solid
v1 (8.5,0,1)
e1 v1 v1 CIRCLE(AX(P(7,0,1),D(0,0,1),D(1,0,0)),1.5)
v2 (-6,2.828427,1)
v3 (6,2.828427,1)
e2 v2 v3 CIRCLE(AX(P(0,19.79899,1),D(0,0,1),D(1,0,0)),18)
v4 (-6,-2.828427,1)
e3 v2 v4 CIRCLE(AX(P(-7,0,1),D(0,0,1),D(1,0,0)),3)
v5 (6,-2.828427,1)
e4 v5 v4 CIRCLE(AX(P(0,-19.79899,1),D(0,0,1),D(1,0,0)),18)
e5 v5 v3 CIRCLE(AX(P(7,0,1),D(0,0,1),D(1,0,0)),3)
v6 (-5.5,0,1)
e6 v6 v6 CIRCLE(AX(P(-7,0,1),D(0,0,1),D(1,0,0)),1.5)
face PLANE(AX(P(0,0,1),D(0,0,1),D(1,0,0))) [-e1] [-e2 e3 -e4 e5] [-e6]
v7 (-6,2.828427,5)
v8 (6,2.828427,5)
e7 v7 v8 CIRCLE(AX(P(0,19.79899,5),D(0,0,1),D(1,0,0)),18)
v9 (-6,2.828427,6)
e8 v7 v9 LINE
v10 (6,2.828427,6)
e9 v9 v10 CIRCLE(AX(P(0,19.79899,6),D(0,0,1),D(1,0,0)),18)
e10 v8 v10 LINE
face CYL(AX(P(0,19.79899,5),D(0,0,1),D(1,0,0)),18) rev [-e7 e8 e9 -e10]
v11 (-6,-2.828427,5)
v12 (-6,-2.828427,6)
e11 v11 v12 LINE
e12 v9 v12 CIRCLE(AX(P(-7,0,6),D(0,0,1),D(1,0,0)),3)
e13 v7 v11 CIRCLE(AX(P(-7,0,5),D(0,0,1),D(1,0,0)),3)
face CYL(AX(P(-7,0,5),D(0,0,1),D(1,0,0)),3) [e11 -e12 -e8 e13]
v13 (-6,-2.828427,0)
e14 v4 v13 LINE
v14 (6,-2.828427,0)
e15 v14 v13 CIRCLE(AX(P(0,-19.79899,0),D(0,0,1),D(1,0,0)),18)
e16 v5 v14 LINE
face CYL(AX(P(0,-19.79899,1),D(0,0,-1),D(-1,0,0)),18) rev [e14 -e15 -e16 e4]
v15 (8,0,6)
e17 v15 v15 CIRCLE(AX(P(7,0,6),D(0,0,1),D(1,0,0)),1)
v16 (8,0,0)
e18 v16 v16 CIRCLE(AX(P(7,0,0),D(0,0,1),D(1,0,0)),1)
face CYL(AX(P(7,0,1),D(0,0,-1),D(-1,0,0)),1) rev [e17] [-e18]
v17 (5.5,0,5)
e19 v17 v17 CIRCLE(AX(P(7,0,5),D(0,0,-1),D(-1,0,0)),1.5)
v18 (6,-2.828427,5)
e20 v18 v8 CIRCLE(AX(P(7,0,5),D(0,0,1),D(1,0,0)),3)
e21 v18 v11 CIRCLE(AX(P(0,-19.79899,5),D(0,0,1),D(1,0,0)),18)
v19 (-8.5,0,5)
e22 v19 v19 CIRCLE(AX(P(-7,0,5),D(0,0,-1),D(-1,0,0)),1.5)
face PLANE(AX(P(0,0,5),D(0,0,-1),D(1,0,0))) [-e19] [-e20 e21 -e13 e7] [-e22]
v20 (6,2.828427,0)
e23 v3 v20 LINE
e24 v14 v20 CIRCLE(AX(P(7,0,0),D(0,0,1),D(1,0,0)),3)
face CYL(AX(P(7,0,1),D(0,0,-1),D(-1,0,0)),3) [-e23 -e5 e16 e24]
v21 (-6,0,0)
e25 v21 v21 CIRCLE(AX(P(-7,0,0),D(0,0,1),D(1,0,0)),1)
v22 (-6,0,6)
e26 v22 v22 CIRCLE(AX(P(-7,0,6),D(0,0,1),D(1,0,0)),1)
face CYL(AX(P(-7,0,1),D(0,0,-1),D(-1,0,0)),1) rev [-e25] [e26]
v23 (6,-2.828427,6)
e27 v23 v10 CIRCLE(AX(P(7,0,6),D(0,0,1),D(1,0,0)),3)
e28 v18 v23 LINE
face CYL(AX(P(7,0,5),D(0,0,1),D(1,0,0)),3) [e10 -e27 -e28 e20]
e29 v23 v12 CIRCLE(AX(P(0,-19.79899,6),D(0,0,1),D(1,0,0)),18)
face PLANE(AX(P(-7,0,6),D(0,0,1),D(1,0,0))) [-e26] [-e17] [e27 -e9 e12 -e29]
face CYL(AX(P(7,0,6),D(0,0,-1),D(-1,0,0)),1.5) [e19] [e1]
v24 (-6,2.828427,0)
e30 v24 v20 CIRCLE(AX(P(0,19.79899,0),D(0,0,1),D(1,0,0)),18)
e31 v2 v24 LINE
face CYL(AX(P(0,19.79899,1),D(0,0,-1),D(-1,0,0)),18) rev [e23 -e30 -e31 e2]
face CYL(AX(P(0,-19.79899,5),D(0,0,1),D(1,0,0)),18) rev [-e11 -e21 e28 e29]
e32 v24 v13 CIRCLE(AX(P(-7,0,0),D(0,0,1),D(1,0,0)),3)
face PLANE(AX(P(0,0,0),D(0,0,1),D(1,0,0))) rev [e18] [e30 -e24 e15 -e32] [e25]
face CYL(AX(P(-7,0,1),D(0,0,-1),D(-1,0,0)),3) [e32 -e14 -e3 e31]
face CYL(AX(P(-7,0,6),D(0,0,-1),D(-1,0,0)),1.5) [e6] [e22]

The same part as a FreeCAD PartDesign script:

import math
import FreeCAD as App
import Part
import Sketcher
Q = App.Units.Quantity

doc = App.newDocument("Part")
body = doc.addObject("PartDesign::Body", "Body")

sketch1 = doc.addObject("Sketcher::SketchObject", "Sketch")
body.addObject(sketch1)
sketch1.AttachmentSupport = (doc.XY_Plane, [""])
sketch1.MapMode = "FlatFace"
sketch1.addGeometry([
    Part.ArcOfCircle(Part.Circle(App.Vector(-7, 0, 0), App.Vector(0, 0, 1), 3), math.radians(70.528779), math.radians(289.471221)),
    Part.ArcOfCircle(Part.Circle(App.Vector(0, -19.79899, 0), App.Vector(0, 0, 1), 18), math.radians(70.528779), math.radians(109.471221)),
    Part.ArcOfCircle(Part.Circle(App.Vector(7, 0, 0), App.Vector(0, 0, 1), 3), math.radians(-109.471221), math.radians(109.471221)),
    Part.ArcOfCircle(Part.Circle(App.Vector(0, 19.79899, 0), App.Vector(0, 0, 1), 18), math.radians(-109.471221), math.radians(-70.528779)),
    Part.Circle(App.Vector(-7, 0, 0), App.Vector(0, 0, 1), 1),
    Part.Circle(App.Vector(7, 0, 0), App.Vector(0, 0, 1), 1),
], False)
sketch1.addConstraint([
    Sketcher.Constraint("Tangent", 0, 2, 1, 2),
    Sketcher.Constraint("Tangent", 1, 1, 2, 1),
    Sketcher.Constraint("Tangent", 2, 2, 3, 2),
    Sketcher.Constraint("Tangent", 3, 1, 0, 1),
    Sketcher.Constraint("Coincident", 4, 3, 0, 3),
    Sketcher.Constraint("Coincident", 5, 3, 2, 3),
    Sketcher.Constraint("Equal", 0, 2),
    Sketcher.Constraint("Equal", 1, 3),
    Sketcher.Constraint("Equal", 4, 5),
    Sketcher.Constraint("Symmetric", 0, 3, 2, 3, -1, 1),
    Sketcher.Constraint("PointOnObject", 0, 3, -1),
    Sketcher.Constraint("Diameter", 4, Q("2 mm")),
    Sketcher.Constraint("Radius", 0, Q("3 mm")),
    Sketcher.Constraint("Radius", 1, Q("18 mm")),
    Sketcher.Constraint("DistanceX", 0, 3, -1, 1, Q("7 mm")),
])
pad1 = doc.addObject("PartDesign::Pad", "Pad")
body.addObject(pad1)
pad1.Profile = sketch1
pad1.Length = 1

sketch2 = doc.addObject("Sketcher::SketchObject", "Sketch001")
body.addObject(sketch2)
sketch2.AttachmentSupport = (doc.XY_Plane, [""])
sketch2.MapMode = "FlatFace"
sketch2.AttachmentOffset = App.Placement(App.Vector(0, 0, 1), App.Rotation())
sketch2.addGeometry([
    Part.Circle(App.Vector(-7, 0, 0), App.Vector(0, 0, 1), 1.5),
    Part.Circle(App.Vector(-7, 0, 0), App.Vector(0, 0, 1), 1),
    Part.Circle(App.Vector(7, 0, 0), App.Vector(0, 0, 1), 1.5),
    Part.Circle(App.Vector(7, 0, 0), App.Vector(0, 0, 1), 1),
], False)
sketch2.addConstraint([
    Sketcher.Constraint("Coincident", 1, 3, 0, 3),
    Sketcher.Constraint("Coincident", 3, 3, 2, 3),
    Sketcher.Constraint("Equal", 0, 2),
    Sketcher.Constraint("Equal", 1, 3),
    Sketcher.Constraint("Symmetric", 0, 3, 2, 3, -1, 1),
    Sketcher.Constraint("PointOnObject", 0, 3, -1),
    Sketcher.Constraint("Diameter", 0, Q("3 mm")),
    Sketcher.Constraint("Diameter", 1, Q("2 mm")),
    Sketcher.Constraint("DistanceX", 0, 3, -1, 1, Q("7 mm")),
])
pad2 = doc.addObject("PartDesign::Pad", "Pad001")
body.addObject(pad2)
pad2.Profile = sketch2
pad2.Length = 5
doc.recompute()

datumplane = doc.addObject("PartDesign::Plane", "DatumPlane")
body.addObject(datumplane)
datumplane.AttachmentSupport = (doc.XY_Plane, [""])
datumplane.MapMode = "FlatFace"
datumplane.AttachmentOffset = App.Placement(App.Vector(0, 0, 3), App.Rotation())
mirrored = doc.addObject("PartDesign::Mirrored", "Mirrored")
body.addObject(mirrored)
mirrored.Originals = [pad1]
mirrored.MirrorPlane = (datumplane, [""])
body.Tip = mirrored

doc.recompute()
